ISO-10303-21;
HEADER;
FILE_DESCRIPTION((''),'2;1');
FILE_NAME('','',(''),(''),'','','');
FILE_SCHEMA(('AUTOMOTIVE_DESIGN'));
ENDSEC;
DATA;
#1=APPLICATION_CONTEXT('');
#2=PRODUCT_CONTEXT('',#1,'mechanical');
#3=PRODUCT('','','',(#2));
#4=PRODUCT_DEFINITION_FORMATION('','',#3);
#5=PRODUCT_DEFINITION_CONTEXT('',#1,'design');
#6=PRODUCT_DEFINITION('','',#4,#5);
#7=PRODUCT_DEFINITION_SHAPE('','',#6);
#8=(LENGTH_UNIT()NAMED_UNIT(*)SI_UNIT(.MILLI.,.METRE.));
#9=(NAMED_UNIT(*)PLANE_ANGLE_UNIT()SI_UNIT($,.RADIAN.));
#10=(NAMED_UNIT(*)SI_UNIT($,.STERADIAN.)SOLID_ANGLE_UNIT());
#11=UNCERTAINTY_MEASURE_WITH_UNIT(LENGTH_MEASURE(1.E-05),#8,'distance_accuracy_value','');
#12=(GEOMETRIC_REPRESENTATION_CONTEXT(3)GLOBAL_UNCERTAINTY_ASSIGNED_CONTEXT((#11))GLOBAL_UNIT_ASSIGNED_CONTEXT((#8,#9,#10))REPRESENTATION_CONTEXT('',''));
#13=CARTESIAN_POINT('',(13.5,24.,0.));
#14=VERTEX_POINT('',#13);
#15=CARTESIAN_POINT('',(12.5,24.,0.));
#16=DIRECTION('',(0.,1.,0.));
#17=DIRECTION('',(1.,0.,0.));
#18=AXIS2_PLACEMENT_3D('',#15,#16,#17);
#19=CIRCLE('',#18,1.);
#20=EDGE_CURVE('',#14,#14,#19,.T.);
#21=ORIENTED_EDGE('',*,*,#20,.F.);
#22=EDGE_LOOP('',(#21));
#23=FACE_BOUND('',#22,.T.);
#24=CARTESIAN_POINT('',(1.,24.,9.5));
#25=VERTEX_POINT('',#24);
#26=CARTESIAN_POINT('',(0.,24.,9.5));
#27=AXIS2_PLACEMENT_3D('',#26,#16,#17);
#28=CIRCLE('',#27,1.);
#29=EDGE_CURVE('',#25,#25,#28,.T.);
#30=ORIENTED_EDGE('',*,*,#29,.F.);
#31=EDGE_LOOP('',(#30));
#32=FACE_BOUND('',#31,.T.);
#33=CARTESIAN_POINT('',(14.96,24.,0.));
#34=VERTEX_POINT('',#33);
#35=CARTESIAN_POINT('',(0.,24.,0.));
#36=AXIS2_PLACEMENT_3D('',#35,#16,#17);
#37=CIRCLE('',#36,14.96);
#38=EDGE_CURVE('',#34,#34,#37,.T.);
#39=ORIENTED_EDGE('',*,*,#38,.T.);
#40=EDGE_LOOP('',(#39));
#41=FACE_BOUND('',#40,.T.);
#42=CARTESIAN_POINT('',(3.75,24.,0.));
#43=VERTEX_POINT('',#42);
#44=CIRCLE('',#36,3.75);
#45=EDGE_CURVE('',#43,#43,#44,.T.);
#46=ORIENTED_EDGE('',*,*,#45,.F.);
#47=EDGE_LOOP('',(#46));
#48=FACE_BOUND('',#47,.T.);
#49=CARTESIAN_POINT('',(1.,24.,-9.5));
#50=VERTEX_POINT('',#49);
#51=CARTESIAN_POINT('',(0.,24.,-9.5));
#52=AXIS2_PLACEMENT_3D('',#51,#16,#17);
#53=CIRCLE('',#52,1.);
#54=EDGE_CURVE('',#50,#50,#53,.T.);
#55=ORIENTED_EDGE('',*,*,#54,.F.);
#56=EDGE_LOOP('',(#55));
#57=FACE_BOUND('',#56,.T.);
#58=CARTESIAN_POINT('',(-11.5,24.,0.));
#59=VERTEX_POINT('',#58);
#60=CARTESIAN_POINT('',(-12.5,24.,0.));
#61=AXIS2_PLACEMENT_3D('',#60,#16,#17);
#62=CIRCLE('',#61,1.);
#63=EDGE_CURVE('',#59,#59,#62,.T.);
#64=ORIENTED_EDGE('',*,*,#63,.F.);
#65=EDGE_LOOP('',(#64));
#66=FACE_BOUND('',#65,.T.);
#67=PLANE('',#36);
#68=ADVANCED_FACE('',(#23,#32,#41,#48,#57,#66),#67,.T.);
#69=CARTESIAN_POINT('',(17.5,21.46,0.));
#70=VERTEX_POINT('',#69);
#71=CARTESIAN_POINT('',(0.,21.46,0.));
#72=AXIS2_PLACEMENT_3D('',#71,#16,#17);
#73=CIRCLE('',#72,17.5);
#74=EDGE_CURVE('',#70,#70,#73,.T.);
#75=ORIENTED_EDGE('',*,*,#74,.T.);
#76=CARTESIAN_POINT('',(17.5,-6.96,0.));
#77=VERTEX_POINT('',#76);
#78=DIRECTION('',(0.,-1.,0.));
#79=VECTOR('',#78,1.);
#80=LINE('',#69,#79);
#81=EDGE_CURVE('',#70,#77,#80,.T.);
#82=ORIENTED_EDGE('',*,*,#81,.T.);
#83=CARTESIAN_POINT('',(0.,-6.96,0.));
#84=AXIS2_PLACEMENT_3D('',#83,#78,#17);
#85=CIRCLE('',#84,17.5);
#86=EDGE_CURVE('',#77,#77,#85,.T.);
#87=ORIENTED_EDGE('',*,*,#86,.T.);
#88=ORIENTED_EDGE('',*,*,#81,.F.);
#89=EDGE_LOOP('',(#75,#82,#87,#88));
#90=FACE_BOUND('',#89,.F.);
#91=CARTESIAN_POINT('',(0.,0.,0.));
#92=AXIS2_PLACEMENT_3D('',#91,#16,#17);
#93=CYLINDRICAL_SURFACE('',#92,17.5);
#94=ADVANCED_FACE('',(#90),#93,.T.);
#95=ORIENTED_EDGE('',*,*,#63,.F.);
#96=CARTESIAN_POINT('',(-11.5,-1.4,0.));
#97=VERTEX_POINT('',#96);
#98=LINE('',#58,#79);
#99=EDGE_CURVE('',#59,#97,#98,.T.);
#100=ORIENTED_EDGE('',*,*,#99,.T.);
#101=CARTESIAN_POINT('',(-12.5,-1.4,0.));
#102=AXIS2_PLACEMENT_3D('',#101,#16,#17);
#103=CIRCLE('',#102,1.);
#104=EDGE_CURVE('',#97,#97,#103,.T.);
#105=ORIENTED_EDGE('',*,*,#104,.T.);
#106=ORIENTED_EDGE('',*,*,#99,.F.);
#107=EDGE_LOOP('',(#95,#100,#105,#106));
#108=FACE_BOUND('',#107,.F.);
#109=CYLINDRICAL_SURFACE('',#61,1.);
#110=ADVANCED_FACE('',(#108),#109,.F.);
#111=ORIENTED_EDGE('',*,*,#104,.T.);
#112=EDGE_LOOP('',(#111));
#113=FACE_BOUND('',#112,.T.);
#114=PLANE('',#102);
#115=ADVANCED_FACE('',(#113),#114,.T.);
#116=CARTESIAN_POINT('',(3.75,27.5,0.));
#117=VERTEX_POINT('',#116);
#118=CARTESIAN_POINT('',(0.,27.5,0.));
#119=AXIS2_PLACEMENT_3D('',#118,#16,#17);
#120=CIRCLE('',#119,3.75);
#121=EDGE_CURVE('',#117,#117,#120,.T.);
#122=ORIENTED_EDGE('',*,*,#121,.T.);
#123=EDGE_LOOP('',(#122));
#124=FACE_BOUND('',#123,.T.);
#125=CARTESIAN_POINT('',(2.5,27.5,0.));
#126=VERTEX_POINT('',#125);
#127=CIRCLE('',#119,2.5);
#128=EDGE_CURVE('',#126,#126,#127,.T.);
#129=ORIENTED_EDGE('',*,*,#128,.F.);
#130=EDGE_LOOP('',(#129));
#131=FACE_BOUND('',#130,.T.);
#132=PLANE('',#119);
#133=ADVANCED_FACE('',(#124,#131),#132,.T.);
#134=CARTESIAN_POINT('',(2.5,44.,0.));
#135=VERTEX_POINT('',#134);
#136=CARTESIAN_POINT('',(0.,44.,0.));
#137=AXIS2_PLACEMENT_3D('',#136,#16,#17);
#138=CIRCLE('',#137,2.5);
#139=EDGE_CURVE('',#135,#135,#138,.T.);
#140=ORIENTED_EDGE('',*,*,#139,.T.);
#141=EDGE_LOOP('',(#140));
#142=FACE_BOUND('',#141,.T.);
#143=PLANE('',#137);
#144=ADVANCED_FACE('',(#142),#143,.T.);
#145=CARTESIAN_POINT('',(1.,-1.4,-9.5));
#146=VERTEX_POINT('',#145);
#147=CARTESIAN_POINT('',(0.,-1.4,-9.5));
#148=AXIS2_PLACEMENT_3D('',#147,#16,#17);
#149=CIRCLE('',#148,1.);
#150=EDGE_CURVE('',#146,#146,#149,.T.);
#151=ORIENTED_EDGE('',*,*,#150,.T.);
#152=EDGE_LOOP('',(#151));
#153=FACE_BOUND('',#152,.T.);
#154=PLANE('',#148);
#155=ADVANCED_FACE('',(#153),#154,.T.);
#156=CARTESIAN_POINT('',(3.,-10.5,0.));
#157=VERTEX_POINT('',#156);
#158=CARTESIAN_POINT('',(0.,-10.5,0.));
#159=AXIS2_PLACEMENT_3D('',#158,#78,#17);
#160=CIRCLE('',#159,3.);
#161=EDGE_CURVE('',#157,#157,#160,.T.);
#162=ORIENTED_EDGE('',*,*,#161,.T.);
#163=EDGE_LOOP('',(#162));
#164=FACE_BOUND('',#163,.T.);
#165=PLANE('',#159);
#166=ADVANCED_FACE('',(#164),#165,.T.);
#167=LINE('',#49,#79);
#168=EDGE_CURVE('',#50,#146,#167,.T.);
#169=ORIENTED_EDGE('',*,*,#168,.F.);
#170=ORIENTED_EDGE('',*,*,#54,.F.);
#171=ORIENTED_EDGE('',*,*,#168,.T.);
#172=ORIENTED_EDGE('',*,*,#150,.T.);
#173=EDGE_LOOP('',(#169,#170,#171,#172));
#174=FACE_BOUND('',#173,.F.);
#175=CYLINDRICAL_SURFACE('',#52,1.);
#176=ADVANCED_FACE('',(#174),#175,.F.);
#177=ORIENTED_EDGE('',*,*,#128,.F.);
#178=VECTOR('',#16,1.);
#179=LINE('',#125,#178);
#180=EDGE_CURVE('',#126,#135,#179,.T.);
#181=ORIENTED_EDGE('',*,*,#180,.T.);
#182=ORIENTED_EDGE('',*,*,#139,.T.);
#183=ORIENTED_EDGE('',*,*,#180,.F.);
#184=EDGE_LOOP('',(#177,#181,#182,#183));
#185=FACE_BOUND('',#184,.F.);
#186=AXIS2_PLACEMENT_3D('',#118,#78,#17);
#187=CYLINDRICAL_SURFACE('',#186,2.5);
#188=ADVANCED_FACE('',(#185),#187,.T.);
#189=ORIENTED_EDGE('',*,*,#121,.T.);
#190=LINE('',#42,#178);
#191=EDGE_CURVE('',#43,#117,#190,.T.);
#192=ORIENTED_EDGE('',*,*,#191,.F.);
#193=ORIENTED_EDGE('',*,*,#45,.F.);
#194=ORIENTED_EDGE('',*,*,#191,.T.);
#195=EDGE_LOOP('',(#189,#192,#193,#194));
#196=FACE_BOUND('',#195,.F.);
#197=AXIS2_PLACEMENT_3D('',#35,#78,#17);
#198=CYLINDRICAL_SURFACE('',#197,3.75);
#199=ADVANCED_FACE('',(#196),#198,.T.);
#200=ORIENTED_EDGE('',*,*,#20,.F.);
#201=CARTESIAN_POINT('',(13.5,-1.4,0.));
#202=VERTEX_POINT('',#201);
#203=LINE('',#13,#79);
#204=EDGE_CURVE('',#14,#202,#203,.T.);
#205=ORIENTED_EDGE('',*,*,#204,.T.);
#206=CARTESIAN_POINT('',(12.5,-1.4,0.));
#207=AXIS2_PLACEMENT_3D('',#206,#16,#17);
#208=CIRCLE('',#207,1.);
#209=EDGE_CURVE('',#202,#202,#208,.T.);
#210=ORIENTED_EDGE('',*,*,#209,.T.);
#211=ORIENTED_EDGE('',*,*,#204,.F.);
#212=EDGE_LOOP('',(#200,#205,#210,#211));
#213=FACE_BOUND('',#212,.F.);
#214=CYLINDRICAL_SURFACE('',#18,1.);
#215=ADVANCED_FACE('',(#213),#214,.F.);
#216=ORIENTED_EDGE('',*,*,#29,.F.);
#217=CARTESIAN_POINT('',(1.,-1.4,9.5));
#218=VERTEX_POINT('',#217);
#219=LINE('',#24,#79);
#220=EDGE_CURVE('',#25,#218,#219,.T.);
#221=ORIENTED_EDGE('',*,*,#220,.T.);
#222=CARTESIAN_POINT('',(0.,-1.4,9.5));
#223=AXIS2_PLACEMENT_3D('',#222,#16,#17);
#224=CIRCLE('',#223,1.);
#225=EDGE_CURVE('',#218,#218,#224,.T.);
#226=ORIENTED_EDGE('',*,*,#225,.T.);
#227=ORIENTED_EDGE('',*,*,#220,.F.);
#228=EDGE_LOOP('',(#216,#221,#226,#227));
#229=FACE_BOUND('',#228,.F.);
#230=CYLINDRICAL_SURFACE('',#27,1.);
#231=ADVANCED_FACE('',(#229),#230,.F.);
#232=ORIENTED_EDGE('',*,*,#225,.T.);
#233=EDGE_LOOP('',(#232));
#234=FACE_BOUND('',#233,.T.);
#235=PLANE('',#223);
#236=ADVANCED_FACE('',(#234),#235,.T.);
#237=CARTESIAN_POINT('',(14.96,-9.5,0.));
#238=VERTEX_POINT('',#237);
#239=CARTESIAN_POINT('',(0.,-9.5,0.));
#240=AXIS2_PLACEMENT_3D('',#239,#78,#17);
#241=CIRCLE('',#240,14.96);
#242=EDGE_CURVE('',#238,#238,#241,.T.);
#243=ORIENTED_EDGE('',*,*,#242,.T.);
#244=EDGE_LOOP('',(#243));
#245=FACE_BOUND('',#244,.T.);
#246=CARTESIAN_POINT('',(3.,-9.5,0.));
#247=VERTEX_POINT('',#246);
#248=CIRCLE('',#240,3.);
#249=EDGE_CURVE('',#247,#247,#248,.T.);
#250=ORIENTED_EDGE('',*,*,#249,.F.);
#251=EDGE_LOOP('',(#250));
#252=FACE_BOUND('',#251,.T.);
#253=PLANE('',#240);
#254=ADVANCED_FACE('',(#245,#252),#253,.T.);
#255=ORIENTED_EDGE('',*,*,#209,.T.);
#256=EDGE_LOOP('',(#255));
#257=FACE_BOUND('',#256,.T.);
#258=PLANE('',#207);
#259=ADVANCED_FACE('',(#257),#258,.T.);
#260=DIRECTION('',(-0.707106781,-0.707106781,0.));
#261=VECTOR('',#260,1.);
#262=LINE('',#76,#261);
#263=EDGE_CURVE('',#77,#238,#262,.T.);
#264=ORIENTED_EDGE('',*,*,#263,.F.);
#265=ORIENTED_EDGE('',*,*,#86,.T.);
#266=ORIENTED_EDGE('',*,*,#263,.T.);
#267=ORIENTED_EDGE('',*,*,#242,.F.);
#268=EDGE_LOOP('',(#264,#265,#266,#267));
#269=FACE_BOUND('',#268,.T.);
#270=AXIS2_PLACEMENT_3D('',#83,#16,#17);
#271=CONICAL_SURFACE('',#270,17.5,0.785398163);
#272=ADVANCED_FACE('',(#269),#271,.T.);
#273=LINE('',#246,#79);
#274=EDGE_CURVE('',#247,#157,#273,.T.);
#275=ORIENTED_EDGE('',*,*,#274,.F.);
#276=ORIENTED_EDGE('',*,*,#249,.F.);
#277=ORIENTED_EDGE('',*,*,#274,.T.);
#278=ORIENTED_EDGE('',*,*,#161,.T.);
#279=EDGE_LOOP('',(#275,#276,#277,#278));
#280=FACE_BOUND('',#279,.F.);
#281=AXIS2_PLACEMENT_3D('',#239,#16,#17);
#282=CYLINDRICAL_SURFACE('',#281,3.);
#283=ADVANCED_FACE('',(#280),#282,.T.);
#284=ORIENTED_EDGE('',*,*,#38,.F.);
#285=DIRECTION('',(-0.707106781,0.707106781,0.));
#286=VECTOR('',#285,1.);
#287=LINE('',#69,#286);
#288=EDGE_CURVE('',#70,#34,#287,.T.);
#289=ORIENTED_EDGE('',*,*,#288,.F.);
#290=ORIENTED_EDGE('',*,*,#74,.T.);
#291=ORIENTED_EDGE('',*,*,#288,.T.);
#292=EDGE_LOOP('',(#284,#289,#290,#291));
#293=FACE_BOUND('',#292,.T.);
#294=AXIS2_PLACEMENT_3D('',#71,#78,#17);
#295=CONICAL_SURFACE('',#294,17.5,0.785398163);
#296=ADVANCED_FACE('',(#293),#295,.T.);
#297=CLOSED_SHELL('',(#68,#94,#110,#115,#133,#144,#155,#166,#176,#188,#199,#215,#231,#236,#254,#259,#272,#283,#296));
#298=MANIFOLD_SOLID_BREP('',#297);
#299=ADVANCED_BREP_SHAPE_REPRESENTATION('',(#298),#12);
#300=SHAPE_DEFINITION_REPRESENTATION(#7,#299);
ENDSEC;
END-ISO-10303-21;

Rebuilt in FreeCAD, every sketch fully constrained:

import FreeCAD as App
import Part
import Sketcher
Q = App.Units.Quantity


def edges_at(feature, points):
    """Names of the edges that pass closest to the given points."""
    edges = feature.Shape.Edges
    near = lambda p: min(range(len(edges)), key=lambda i: edges[i].distToShape(Part.Vertex(*p))[0])
    return sorted({f"Edge{near(p) + 1}" for p in points})

doc = App.newDocument("Part")
body = doc.addObject("PartDesign::Body", "Body")

# Sketch on XZ plane
sketch1 = doc.addObject("Sketcher::SketchObject", "Sketch")
body.addObject(sketch1)
sketch1.AttachmentSupport = (doc.XZ_Plane, [""])
sketch1.MapMode = "FlatFace"
sketch1.addGeometry(Part.Circle(App.Vector(0, 0, 0), App.Vector(0, 0, 1), 18), False)
sketch1.addConstraint([
    Sketcher.Constraint("Coincident", 0, 3, -1, 1),
    Sketcher.Constraint("Diameter", 0, Q("35 mm")),
])
pad1 = doc.addObject("PartDesign::Pad", "Pad")
body.addObject(pad1)
pad1.Profile = sketch1
pad1.Length = 24
pad1.Reversed = True

# Sketch on XZ plane
sketch2 = doc.addObject("Sketcher::SketchObject", "Sketch001")
body.addObject(sketch2)
sketch2.AttachmentSupport = (doc.XZ_Plane, [""])
sketch2.MapMode = "FlatFace"
sketch2.AttachmentOffset = App.Placement(App.Vector(0, 0, -24), App.Rotation())
sketch2.addGeometry(Part.Circle(App.Vector(0, 0, 0), App.Vector(0, 0, 1), 3.8), False)
sketch2.addConstraint([
    Sketcher.Constraint("Coincident", 0, 3, -1, 1),
    Sketcher.Constraint("Diameter", 0, Q("7.5 mm")),
])
pad2 = doc.addObject("PartDesign::Pad", "Pad001")
body.addObject(pad2)
pad2.Profile = sketch2
pad2.Length = 3.5
pad2.Reversed = True

# Sketch on XZ plane
sketch3 = doc.addObject("Sketcher::SketchObject", "Sketch002")
body.addObject(sketch3)
sketch3.AttachmentSupport = (doc.XZ_Plane, [""])
sketch3.MapMode = "FlatFace"
sketch3.AttachmentOffset = App.Placement(App.Vector(0, 0, -27.5), App.Rotation())
sketch3.addGeometry(Part.Circle(App.Vector(0, 0, 0), App.Vector(0, 0, 1), 2.5), False)
sketch3.addConstraint([
    Sketcher.Constraint("Coincident", 0, 3, -1, 1),
    Sketcher.Constraint("Diameter", 0, Q("5 mm")),
])
pad3 = doc.addObject("PartDesign::Pad", "Pad002")
body.addObject(pad3)
pad3.Profile = sketch3
pad3.Length = 16.5
pad3.Reversed = True
doc.recompute()

chamfer = doc.addObject("PartDesign::Chamfer", "Chamfer")
body.addObject(chamfer)
chamfer.Base = (pad3, edges_at(pad3, [(-17.5, 24, 0)]))
chamfer.Size = 2.54

# Sketch on XZ plane
sketch4 = doc.addObject("Sketcher::SketchObject", "Sketch003")
body.addObject(sketch4)
sketch4.AttachmentSupport = (doc.XZ_Plane, [""])
sketch4.MapMode = "FlatFace"
sketch4.addGeometry(Part.Circle(App.Vector(0, 0, 0), App.Vector(0, 0, 1), 18), False)
sketch4.addConstraint([
    Sketcher.Constraint("Coincident", 0, 3, -1, 1),
    Sketcher.Constraint("Diameter", 0, Q("35 mm")),
])
pad4 = doc.addObject("PartDesign::Pad", "Pad003")
body.addObject(pad4)
pad4.Profile = sketch4
pad4.Length = 9.5
doc.recompute()

chamfer2 = doc.addObject("PartDesign::Chamfer", "Chamfer001")
body.addObject(chamfer2)
chamfer2.Base = (pad4, edges_at(pad4, [(-17.5, -9.5, 0)]))
chamfer2.Size = 2.54

# Sketch on XZ plane
sketch5 = doc.addObject("Sketcher::SketchObject", "Sketch004")
body.addObject(sketch5)
sketch5.AttachmentSupport = (doc.XZ_Plane, [""])
sketch5.MapMode = "FlatFace"
sketch5.AttachmentOffset = App.Placement(App.Vector(0, 0, 9.5), App.Rotation())
sketch5.addGeometry(Part.Circle(App.Vector(0, 0, 0), App.Vector(0, 0, 1), 3), False)
sketch5.addConstraint([
    Sketcher.Constraint("Coincident", 0, 3, -1, 1),
    Sketcher.Constraint("Diameter", 0, Q("6 mm")),
])
pad5 = doc.addObject("PartDesign::Pad", "Pad004")
body.addObject(pad5)
pad5.Profile = sketch5
pad5.Length = 1

# Sketch on XZ plane
sketch6 = doc.addObject("Sketcher::SketchObject", "Sketch005")
body.addObject(sketch6)
sketch6.AttachmentSupport = (doc.XZ_Plane, [""])
sketch6.MapMode = "FlatFace"
sketch6.AttachmentOffset = App.Placement(App.Vector(0, 0, -24), App.Rotation())
sketch6.addGeometry([
    Part.Circle(App.Vector(0, -9.5, 0), App.Vector(0, 0, 1), 1),
    Part.Circle(App.Vector(12.5, 0, 0), App.Vector(0, 0, 1), 1),
    Part.Circle(App.Vector(0, 9.5, 0), App.Vector(0, 0, 1), 1),
    Part.Circle(App.Vector(-12.5, 0, 0), App.Vector(0, 0, 1), 1),
], False)
sketch6.addConstraint([
    Sketcher.Constraint("Equal", 0, 1),
    Sketcher.Constraint("Equal", 1, 2),
    Sketcher.Constraint("Equal", 2, 3),
    Sketcher.Constraint("Symmetric", 0, 3, 2, 3, -1, 1),
    Sketcher.Constraint("Symmetric", 1, 3, 3, 3, -1, 1),
    Sketcher.Constraint("PointOnObject", 0, 3, -2),
    Sketcher.Constraint("PointOnObject", 1, 3, -1),
    Sketcher.Constraint("Diameter", 0, Q("2 mm")),
    Sketcher.Constraint("DistanceY", 0, 3, 2, 3, Q("19 mm")),
    Sketcher.Constraint("DistanceX", 3, 3, 1, 3, Q("25 mm")),
])
pocket1 = doc.addObject("PartDesign::Pocket", "Pocket")
body.addObject(pocket1)
pocket1.Profile = sketch6
pocket1.Length = 25.4
pocket1.Reversed = True

doc.recompute()
